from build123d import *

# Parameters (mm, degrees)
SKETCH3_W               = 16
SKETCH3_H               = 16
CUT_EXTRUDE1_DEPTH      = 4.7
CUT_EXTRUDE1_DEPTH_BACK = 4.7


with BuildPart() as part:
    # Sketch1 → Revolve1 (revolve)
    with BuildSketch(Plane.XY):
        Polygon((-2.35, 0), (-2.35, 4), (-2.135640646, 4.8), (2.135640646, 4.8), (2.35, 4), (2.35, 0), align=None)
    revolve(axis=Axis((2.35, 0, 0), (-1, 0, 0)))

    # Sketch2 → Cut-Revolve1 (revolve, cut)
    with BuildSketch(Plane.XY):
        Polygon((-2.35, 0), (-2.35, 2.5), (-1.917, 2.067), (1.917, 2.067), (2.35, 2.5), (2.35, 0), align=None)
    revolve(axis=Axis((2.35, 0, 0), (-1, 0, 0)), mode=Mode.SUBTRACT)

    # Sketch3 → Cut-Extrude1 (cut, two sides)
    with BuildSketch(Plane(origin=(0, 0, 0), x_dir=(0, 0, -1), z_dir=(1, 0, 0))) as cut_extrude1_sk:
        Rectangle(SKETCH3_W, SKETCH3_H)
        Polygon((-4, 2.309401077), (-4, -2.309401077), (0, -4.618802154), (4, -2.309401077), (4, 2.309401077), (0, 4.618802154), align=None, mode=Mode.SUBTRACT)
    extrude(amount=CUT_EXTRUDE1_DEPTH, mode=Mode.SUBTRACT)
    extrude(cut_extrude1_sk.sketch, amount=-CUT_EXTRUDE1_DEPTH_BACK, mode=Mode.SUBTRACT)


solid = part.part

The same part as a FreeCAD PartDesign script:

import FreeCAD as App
import Part
import Sketcher
from FreeCAD import Vector
Q = App.Units.Quantity


def add_polygon(sketch, points):
    """Adds a closed chain of lines whose ends are joined by coincident constraints."""
    first, n = sketch.GeometryCount, len(points)
    for a, b in zip(points, points[1:] + points[:1]):
        sketch.addGeometry(Part.LineSegment(App.Vector(*a, 0), App.Vector(*b, 0)), False)
    for i in range(n):
        sketch.addConstraint(Sketcher.Constraint("Coincident", first + i, 2, first + (i + 1) % n, 1))

doc = App.newDocument("Part")
body = doc.addObject("PartDesign::Body", "Body")

# Sketch on XY plane
sketch1 = body.newObject("Sketcher::SketchObject", "Sketch")
sketch1.AttachmentSupport = (doc.getObject("XY_Plane"), [""])
sketch1.MapMode = "FlatFace"
add_polygon(sketch1, [(-2.35, 4), (-2.35, 0), (2.35, 0), (2.35, 4), (2.135641, 4.8), (-2.135641, 4.8)])  # lines 0-5
sketch1.addConstraint(Sketcher.Constraint("Vertical", 0))
sketch1.addConstraint(Sketcher.Constraint("Horizontal", 1))
sketch1.addConstraint(Sketcher.Constraint("Vertical", 2))
sketch1.addConstraint(Sketcher.Constraint("Horizontal", 4))
sketch1.addConstraint(Sketcher.Constraint("Symmetric", 0, 2, 1, 2, -1, 1))
sketch1.addConstraint(Sketcher.Constraint("Horizontal", 2, 2, 5, 2))
sketch1.addConstraint(Sketcher.Constraint("Equal", 3, 5))
sketch1.addConstraint(Sketcher.Constraint("DistanceY", 0, 2, 0, 1, Q("4 mm")))
sketch1.addConstraint(Sketcher.Constraint("Angle", 3, Q("105 deg")))
sketch1.addConstraint(Sketcher.Constraint("DistanceX", 1, 1, 1, 2, Q("4.7 mm")))
sketch1.addConstraint(Sketcher.Constraint("DistanceY", -1, 1, 3, 2, Q("4.8 mm")))
revolution = body.newObject("PartDesign::Revolution", "Revolution")
revolution.Profile = sketch1
revolution.ReferenceAxis = (sketch1, ["H_Axis"])
revolution.Angle = 360

# Sketch on XY plane
sketch2 = body.newObject("Sketcher::SketchObject", "Sketch001")
sketch2.AttachmentSupport = (doc.getObject("XY_Plane"), [""])
sketch2.MapMode = "FlatFace"
add_polygon(sketch2, [(-2.35, 2.5), (-2.35, 0), (2.35, 0), (2.35, 2.5), (1.917, 2.067), (-1.917, 2.067)])  # lines 0-5
sketch2.addConstraint(Sketcher.Constraint("Vertical", 0))
sketch2.addConstraint(Sketcher.Constraint("Horizontal", 1))
sketch2.addConstraint(Sketcher.Constraint("Vertical", 2))
sketch2.addConstraint(Sketcher.Constraint("Horizontal", 4))
sketch2.addConstraint(Sketcher.Constraint("Symmetric", 0, 2, 1, 2, -1, 1))
sketch2.addConstraint(Sketcher.Constraint("Perpendicular", 3, 5))
sketch2.addConstraint(Sketcher.Constraint("Horizontal", 2, 2, 5, 2))
sketch2.addConstraint(Sketcher.Constraint("Equal", 3, 5))
sketch2.addConstraint(Sketcher.Constraint("DistanceX", 1, 1, 1, 2, Q("4.7 mm")))
sketch2.addConstraint(Sketcher.Constraint("DistanceY", 0, 2, 0, 1, Q("2.5 mm")))
sketch2.addConstraint(Sketcher.Constraint("DistanceX", 4, 2, 4, 1, Q("3.834 mm")))
groove = body.newObject("PartDesign::Groove", "Groove")
groove.Profile = sketch2
groove.ReferenceAxis = (sketch2, ["H_Axis"])
groove.Angle = 360

# Sketch on YZ plane
sketch3 = body.newObject("Sketcher::SketchObject", "Sketch002")
sketch3.AttachmentSupport = (doc.getObject("YZ_Plane"), [""])
sketch3.MapMode = "FlatFace"
add_polygon(sketch3, [(8, 8), (-8, 8), (-8, -8), (8, -8)])  # lines 0-3
add_polygon(sketch3, [(-2.309401, 4), (2.309401, 4), (4.618802, 0), (2.309401, -4), (-2.309401, -4), (-4.618802, 0)])  # lines 4-9
sketch3.addConstraint(Sketcher.Constraint("Horizontal", 0))
sketch3.addConstraint(Sketcher.Constraint("Vertical", 1))
sketch3.addConstraint(Sketcher.Constraint("Horizontal", 2))
sketch3.addConstraint(Sketcher.Constraint("Vertical", 3))
sketch3.addConstraint(Sketcher.Constraint("Horizontal", 4))
sketch3.addConstraint(Sketcher.Constraint("Horizontal", 7))
sketch3.addConstraint(Sketcher.Constraint("Symmetric", 0, 2, 2, 2, -1, 1))
sketch3.addConstraint(Sketcher.Constraint("Symmetric", 4, 2, 7, 2, -1, 1))
sketch3.addConstraint(Sketcher.Constraint("Symmetric", 5, 2, 8, 2, -1, 1))
sketch3.addConstraint(Sketcher.Constraint("PointOnObject", 5, 2, -1))
sketch3.addConstraint(Sketcher.Constraint("Parallel", 6, 9))
sketch3.addConstraint(Sketcher.Constraint("Vertical", 4, 2, 6, 2))
sketch3.addConstraint(Sketcher.Constraint("Equal", 2, 1))
sketch3.addConstraint(Sketcher.Constraint("DistanceX", 0, 2, 0, 1, Q("16 mm")))
sketch3.addConstraint(Sketcher.Constraint("Angle", 5, Q("-60 deg")))
sketch3.addConstraint(Sketcher.Constraint("DistanceY", -1, 1, 4, 2, Q("4 mm")))
sketch3.addConstraint(Sketcher.Constraint("DistanceX", -1, 1, 4, 2, Q("2.309401 mm")))
pocket1 = body.newObject("PartDesign::Pocket", "Pocket")
pocket1.Profile = sketch3
pocket1.Type = "ThroughAll"
pocket1.Midplane = True

doc.recompute()
